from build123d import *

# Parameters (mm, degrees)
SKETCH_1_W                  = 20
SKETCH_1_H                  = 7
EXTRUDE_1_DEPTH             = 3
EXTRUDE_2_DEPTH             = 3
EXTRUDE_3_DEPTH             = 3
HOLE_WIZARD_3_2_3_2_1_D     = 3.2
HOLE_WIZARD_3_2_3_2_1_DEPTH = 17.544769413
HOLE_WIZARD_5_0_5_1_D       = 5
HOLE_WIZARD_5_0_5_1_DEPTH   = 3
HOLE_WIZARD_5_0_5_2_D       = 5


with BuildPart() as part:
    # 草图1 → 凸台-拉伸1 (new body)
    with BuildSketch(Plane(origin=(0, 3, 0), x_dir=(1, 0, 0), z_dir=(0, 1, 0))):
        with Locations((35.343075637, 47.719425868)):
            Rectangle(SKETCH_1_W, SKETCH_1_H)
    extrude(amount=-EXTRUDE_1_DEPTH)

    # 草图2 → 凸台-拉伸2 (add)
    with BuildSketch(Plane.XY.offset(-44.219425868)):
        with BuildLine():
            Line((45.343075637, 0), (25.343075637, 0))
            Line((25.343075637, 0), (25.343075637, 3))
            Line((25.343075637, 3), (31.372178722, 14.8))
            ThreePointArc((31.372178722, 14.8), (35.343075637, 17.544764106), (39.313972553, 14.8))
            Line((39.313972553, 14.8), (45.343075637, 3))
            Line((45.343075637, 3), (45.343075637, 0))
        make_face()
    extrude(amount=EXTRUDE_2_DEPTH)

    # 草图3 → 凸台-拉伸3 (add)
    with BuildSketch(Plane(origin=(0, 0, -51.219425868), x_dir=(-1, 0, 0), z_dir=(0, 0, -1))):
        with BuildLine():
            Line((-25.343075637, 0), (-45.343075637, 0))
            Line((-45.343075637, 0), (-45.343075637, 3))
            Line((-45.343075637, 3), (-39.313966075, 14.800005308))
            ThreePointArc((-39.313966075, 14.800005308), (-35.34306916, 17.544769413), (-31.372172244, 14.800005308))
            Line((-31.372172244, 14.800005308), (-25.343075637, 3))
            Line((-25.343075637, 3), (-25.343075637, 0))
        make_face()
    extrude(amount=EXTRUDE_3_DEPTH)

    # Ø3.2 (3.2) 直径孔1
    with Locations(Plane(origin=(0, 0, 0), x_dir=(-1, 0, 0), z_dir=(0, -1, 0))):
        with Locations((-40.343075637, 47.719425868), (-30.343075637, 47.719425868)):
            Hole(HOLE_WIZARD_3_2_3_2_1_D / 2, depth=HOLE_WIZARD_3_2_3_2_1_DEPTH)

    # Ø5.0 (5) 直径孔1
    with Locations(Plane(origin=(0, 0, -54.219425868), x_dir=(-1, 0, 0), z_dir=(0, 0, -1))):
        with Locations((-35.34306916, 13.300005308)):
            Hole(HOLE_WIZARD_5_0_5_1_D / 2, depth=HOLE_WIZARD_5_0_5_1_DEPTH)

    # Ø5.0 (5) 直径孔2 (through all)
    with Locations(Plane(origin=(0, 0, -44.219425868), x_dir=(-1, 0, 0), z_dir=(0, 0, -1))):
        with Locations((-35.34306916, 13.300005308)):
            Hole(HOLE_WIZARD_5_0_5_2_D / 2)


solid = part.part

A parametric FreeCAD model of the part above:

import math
import FreeCAD as App
import Part
import Sketcher

V = App.Vector

doc = App.newDocument("Part")
body = doc.addObject("PartDesign::Body", "Body")

sketch1 = body.newObject("Sketcher::SketchObject", "Sketch")
sketch1.AttachmentSupport = (doc.getObject("XZ_Plane"), [""])
sketch1.MapMode = "FlatFace"
sketch1.AttachmentOffset = App.Placement(V(0, 0, -3), App.Rotation())
sketch1.addGeometry([
    Part.LineSegment(V(25, -51, 0), V(25, -44, 0)),
    Part.LineSegment(V(25, -44, 0), V(45, -44, 0)),
    Part.LineSegment(V(45, -44, 0), V(45, -51, 0)),
    Part.LineSegment(V(45, -51, 0), V(25, -51, 0)),
], False)
sketch1.addConstraint([
    Sketcher.Constraint("Coincident", 0, 2, 1, 1),
    Sketcher.Constraint("Coincident", 1, 2, 2, 1),
    Sketcher.Constraint("Coincident", 2, 2, 3, 1),
    Sketcher.Constraint("Coincident", 3, 2, 0, 1),
    Sketcher.Constraint("Vertical", 0),
    Sketcher.Constraint("Horizontal", 1),
    Sketcher.Constraint("Vertical", 2),
    Sketcher.Constraint("Horizontal", 3),
    Sketcher.Constraint("DistanceX", 1, 1, 1, 2, 20.0),
    Sketcher.Constraint("DistanceY", 0, 1, 0, 2, 7.0),
    Sketcher.Constraint("DistanceX", -1, 1, 0, 2, 25.343076),
    Sketcher.Constraint("DistanceY", 0, 2, -1, 1, 44.219426),
])
pad1 = body.newObject("PartDesign::Pad", "Pad")
pad1.Profile = sketch1
pad1.Length = 3

sketch2 = body.newObject("Sketcher::SketchObject", "Sketch001")
sketch2.AttachmentSupport = (doc.getObject("XY_Plane"), [""])
sketch2.MapMode = "FlatFace"
sketch2.AttachmentOffset = App.Placement(V(0, 0, -44.219426), App.Rotation())
sketch2.addGeometry([
    Part.LineSegment(V(25.3, 0, 0), V(45.3, 0, 0)),
    Part.LineSegment(V(45.3, 0, 0), V(45.3, 3, 0)),
    Part.LineSegment(V(45.3, 3, 0), V(39.3, 14.8, 0)),
    Part.ArcOfCircle(Part.Circle(V(35.3, 13.3, 0), V(0, 0, 1), 4.2), math.radians(21), math.radians(159)),
    Part.LineSegment(V(31.4, 14.8, 0), V(25.3, 3, 0)),
    Part.LineSegment(V(25.3, 3, 0), V(25.3, 0, 0)),
], False)
sketch2.addConstraint([
    Sketcher.Constraint("Coincident", 0, 2, 1, 1),
    Sketcher.Constraint("Coincident", 1, 2, 2, 1),
    Sketcher.Constraint("Coincident", 2, 2, 3, 1),
    Sketcher.Constraint("Coincident", 3, 2, 4, 1),
    Sketcher.Constraint("Coincident", 4, 2, 5, 1),
    Sketcher.Constraint("Coincident", 5, 2, 0, 1),
    Sketcher.Constraint("Horizontal", 0),
    Sketcher.Constraint("Vertical", 1),
    Sketcher.Constraint("Vertical", 5),
    Sketcher.Constraint("PointOnObject", 0, 2, -1),
    Sketcher.Constraint("Horizontal", 2, 2, 3, 2),
    Sketcher.Constraint("Horizontal", 1, 2, 4, 2),
    Sketcher.Constraint("Equal", 2, 4),
    Sketcher.Constraint("DistanceX", 0, 1, 0, 2, 20.0),
    Sketcher.Constraint("DistanceY", 1, 1, 1, 2, 3.0),
    Sketcher.Constraint("DistanceY", -1, 1, 3, 3, 13.3),
    Sketcher.Constraint("DistanceY", -1, 1, 2, 2, 14.8),
    Sketcher.Constraint("Radius", 3, 4.244764),
    Sketcher.Constraint("DistanceX", -1, 1, 3, 2, 31.372179),
])
pad2 = body.newObject("PartDesign::Pad", "Pad001")
pad2.Profile = sketch2
pad2.Length = 3

sketch3 = body.newObject("Sketcher::SketchObject", "Sketch002")
sketch3.AttachmentSupport = (doc.getObject("XY_Plane"), [""])
sketch3.MapMode = "FlatFace"
sketch3.AttachmentOffset = App.Placement(V(0, 0, -51.219426), App.Rotation())
sketch3.addGeometry([
    Part.LineSegment(V(45.3, 0, 0), V(25.3, 0, 0)),
    Part.LineSegment(V(25.3, 0, 0), V(25.3, 3, 0)),
    Part.LineSegment(V(25.3, 3, 0), V(31.4, 14.8, 0)),
    Part.ArcOfCircle(Part.Circle(V(35.3, 13.3, 0), V(0, 0, 1), 4.2), math.radians(21), math.radians(159)),
    Part.LineSegment(V(39.3, 14.8, 0), V(45.3, 3, 0)),
    Part.LineSegment(V(45.3, 3, 0), V(45.3, 0, 0)),
], False)
sketch3.addConstraint([
    Sketcher.Constraint("Coincident", 0, 2, 1, 1),
    Sketcher.Constraint("Coincident", 1, 2, 2, 1),
    Sketcher.Constraint("Coincident", 2, 2, 3, 2),
    Sketcher.Constraint("Coincident", 3, 1, 4, 1),
    Sketcher.Constraint("Coincident", 4, 2, 5, 1),
    Sketcher.Constraint("Coincident", 5, 2, 0, 1),
    Sketcher.Constraint("Horizontal", 0),
    Sketcher.Constraint("Vertical", 1),
    Sketcher.Constraint("Vertical", 5),
    Sketcher.Constraint("PointOnObject", 0, 2, -1),
    Sketcher.Constraint("Horizontal", 2, 2, 3, 1),
    Sketcher.Constraint("Horizontal", 1, 2, 4, 2),
    Sketcher.Constraint("DistanceX", 0, 2, 0, 1, 20.0),
    Sketcher.Constraint("DistanceY", 1, 1, 1, 2, 3.0),
    Sketcher.Constraint("DistanceY", 3, 3, 2, 2, 1.5),
    Sketcher.Constraint("Radius", 3, 4.244764),
    Sketcher.Constraint("Distance", 4, 13.251049),
    Sketcher.Constraint("DistanceX", -1, 1, 3, 3, 35.343069),
    Sketcher.Constraint("DistanceX", 1, 2, 3, 1, 13.97089),
])
pad3 = body.newObject("PartDesign::Pad", "Pad002")
pad3.Profile = sketch3
pad3.Length = 3
pad3.Reversed = True

sketch4 = body.newObject("Sketcher::SketchObject", "Sketch003")
sketch4.AttachmentSupport = (doc.getObject("XZ_Plane"), [""])
sketch4.MapMode = "FlatFace"
sketch4.addGeometry([
    Part.Circle(V(40.3, -47.7, 0), V(0, 0, 1), 1.6),
    Part.Circle(V(30.3, -47.7, 0), V(0, 0, 1), 1.6),
], False)
sketch4.addConstraint([
    Sketcher.Constraint("Equal", 0, 1),
    Sketcher.Constraint("Horizontal", 0, 3, 1, 3),
    Sketcher.Constraint("Diameter", 0, 3.2),
    Sketcher.Constraint("DistanceX", 1, 3, 0, 3, 10.0),
    Sketcher.Constraint("DistanceX", -1, 1, 0, 3, 40.343076),
    Sketcher.Constraint("DistanceY", 0, 3, -1, 1, 47.719426),
])
doc.recompute()
hole = body.newObject("PartDesign::Hole", "Hole")
hole.Profile = sketch4
hole.ThreadType = "None"
hole.Diameter = 3.2
hole.DepthType = "Dimension"
hole.Depth = 17.544769
hole.DrillPoint = "Flat"

sketch5 = body.newObject("Sketcher::SketchObject", "Sketch004")
sketch5.AttachmentSupport = (doc.getObject("XY_Plane"), [""])
sketch5.MapMode = "FlatFace"
sketch5.AttachmentOffset = App.Placement(V(0, 0, -54.219426), App.Rotation())
sketch5.addGeometry(Part.Circle(V(35.3, 13.3, 0), V(0, 0, 1), 2.5), False)
sketch5.addConstraint([
    Sketcher.Constraint("Diameter", 0, 5.0),
    Sketcher.Constraint("DistanceX", -1, 1, 0, 3, 35.343069),
    Sketcher.Constraint("DistanceY", -1, 1, 0, 3, 13.300005),
])
doc.recompute()
hole2 = body.newObject("PartDesign::Hole", "Hole001")
hole2.Profile = sketch5
hole2.ThreadType = "None"
hole2.Diameter = 5
hole2.DepthType = "Dimension"
hole2.Depth = 3
hole2.DrillPoint = "Flat"
hole2.Reversed = True

sketch6 = body.newObject("Sketcher::SketchObject", "Sketch005")
sketch6.AttachmentSupport = (doc.getObject("XY_Plane"), [""])
sketch6.MapMode = "FlatFace"
sketch6.AttachmentOffset = App.Placement(V(0, 0, -44.219426), App.Rotation())
sketch6.addGeometry(Part.Circle(V(35.3, 13.3, 0), V(0, 0, 1), 2.5), False)
sketch6.addConstraint([
    Sketcher.Constraint("Diameter", 0, 5.0),
    Sketcher.Constraint("DistanceX", -1, 1, 0, 3, 35.343069),
    Sketcher.Constraint("DistanceY", -1, 1, 0, 3, 13.300005),
])
doc.recompute()
hole3 = body.newObject("PartDesign::Hole", "Hole002")
hole3.Profile = sketch6
hole3.ThreadType = "None"
hole3.Diameter = 5
hole3.DepthType = "ThroughAll"
hole3.Reversed = True

doc.recompute()
